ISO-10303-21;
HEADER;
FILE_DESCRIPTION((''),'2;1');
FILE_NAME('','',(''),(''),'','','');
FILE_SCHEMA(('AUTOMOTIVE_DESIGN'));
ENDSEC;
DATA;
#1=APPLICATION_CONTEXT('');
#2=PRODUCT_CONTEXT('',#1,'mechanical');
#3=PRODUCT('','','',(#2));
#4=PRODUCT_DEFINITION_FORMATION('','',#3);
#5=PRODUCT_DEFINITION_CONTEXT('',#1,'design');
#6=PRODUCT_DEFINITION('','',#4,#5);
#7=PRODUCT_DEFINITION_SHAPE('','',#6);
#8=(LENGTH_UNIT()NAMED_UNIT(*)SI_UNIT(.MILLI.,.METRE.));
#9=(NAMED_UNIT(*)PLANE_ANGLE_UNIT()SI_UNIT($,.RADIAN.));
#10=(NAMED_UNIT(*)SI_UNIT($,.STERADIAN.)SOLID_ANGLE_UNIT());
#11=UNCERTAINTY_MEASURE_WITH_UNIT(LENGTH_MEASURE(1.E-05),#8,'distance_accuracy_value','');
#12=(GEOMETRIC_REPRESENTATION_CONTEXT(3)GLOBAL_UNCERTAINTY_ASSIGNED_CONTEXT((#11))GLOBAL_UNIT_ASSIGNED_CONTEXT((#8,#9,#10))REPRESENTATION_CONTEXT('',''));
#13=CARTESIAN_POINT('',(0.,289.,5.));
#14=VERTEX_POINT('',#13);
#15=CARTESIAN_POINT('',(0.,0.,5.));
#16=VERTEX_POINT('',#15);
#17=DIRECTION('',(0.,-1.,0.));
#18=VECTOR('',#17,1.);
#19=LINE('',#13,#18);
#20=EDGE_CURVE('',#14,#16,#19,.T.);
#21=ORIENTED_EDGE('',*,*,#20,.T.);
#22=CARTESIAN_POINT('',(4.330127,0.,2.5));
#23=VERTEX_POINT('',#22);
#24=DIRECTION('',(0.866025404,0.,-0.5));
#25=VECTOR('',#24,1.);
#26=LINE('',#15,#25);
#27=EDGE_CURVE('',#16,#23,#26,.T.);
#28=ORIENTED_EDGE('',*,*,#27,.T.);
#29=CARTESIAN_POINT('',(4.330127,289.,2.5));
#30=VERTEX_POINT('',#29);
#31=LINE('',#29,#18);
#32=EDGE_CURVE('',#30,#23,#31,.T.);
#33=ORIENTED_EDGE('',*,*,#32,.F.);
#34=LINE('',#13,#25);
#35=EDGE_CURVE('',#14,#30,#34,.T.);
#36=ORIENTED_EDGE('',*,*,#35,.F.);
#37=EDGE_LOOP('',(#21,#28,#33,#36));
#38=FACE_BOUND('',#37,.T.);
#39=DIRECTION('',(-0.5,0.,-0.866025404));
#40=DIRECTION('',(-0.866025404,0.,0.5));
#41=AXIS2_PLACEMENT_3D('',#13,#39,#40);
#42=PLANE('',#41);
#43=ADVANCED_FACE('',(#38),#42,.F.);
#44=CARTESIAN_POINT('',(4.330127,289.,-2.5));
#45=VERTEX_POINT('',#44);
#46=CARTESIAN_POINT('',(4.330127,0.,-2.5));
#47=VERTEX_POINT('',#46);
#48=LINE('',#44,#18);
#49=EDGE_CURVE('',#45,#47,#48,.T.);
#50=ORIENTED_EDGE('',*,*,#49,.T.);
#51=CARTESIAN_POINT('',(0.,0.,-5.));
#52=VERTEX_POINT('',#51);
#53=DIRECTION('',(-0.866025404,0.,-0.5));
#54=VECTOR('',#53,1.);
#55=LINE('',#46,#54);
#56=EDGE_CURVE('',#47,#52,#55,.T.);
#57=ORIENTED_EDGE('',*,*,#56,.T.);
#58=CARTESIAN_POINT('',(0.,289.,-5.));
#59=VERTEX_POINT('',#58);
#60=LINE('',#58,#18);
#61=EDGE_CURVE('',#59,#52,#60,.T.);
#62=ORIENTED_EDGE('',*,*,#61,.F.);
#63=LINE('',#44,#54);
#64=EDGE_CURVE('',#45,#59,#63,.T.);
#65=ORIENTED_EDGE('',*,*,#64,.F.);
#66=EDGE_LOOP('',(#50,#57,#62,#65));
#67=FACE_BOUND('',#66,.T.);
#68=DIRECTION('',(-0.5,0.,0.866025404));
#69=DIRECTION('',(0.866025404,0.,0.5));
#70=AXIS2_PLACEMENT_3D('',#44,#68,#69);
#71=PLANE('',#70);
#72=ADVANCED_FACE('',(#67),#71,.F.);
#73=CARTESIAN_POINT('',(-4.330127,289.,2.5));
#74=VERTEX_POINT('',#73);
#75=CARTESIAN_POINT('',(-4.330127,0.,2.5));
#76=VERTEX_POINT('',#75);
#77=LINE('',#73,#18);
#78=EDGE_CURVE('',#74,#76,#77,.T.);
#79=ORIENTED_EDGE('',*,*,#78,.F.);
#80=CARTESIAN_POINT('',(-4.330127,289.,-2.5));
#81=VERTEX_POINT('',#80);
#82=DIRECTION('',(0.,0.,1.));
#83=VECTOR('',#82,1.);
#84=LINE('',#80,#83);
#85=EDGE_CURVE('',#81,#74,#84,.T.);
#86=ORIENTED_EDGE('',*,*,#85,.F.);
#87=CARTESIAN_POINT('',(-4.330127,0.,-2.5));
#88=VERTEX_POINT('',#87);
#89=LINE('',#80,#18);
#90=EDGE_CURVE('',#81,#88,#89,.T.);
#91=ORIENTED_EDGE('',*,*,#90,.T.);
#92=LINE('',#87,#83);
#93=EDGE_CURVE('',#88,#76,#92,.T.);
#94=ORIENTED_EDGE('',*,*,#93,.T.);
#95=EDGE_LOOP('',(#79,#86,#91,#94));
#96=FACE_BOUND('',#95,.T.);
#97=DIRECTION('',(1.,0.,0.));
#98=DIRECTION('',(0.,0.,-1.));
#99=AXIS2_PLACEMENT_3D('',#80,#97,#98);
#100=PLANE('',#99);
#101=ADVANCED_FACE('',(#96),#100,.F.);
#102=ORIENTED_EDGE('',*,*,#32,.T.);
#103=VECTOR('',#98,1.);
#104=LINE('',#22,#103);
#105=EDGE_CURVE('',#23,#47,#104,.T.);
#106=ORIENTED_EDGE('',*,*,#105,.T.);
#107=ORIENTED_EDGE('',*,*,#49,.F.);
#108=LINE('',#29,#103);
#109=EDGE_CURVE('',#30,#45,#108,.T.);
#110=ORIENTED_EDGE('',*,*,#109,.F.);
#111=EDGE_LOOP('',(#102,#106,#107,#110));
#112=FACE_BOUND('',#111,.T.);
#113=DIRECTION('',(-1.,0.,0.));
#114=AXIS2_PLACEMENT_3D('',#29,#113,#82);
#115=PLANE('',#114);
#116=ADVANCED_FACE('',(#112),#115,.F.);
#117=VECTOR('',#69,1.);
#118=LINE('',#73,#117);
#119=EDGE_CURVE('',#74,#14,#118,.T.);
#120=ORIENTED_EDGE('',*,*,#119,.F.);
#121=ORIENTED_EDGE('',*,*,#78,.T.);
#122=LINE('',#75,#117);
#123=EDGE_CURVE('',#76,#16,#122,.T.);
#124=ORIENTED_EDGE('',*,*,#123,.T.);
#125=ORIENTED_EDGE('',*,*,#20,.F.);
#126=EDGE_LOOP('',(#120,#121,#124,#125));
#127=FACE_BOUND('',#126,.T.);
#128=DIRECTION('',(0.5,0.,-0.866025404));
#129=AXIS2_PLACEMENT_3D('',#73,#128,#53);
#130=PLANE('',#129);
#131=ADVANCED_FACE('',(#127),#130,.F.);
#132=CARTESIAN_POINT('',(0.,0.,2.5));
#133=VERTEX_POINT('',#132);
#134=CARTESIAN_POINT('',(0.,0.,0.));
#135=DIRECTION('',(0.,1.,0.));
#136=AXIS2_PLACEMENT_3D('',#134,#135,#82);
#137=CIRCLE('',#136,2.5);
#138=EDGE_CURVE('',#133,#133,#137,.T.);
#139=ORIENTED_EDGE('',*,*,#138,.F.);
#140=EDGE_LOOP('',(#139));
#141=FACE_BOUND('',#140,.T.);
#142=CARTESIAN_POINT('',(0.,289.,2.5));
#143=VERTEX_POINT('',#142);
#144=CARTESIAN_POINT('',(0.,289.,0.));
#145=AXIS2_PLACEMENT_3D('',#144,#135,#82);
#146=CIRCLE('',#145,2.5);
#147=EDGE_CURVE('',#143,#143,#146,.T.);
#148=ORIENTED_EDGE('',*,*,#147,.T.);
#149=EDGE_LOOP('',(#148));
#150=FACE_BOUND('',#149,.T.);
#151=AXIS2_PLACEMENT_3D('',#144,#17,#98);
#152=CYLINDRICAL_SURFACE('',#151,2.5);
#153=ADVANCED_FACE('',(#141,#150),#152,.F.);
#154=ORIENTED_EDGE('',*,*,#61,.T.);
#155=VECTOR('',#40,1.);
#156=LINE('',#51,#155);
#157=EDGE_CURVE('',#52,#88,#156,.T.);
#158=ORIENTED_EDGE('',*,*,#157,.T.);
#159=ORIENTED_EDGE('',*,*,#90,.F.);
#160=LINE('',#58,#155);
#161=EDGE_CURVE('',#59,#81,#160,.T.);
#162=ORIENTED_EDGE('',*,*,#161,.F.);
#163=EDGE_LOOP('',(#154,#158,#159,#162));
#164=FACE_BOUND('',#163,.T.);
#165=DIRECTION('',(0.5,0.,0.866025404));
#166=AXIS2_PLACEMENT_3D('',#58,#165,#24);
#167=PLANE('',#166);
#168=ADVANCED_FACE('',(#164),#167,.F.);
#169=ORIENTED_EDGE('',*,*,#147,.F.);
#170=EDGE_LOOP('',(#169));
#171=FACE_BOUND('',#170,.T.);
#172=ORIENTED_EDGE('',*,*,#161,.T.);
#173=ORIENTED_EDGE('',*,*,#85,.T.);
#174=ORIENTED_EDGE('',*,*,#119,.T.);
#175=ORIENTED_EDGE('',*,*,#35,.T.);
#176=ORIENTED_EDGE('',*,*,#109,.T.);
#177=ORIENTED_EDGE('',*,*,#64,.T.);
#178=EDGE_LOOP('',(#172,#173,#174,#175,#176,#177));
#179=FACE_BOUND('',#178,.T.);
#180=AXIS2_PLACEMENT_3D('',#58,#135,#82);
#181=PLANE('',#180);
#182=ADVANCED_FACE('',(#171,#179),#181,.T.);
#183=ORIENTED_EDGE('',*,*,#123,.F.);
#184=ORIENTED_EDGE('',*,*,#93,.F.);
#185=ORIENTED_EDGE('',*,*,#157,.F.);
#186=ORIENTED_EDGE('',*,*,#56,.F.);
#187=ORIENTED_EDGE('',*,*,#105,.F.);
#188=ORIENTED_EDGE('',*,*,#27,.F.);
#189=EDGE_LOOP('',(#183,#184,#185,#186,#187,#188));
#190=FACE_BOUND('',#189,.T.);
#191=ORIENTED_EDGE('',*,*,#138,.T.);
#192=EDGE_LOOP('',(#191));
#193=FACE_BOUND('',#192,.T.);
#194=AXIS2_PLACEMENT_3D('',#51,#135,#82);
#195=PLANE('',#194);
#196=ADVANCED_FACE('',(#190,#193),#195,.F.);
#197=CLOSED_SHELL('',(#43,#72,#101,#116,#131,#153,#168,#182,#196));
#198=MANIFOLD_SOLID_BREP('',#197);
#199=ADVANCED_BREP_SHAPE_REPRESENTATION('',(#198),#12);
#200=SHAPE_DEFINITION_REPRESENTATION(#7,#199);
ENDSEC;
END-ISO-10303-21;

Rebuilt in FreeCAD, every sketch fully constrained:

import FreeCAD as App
import Part
import Sketcher
Q = App.Units.Quantity


def add_polygon(sketch, points):
    """Adds a closed chain of lines whose ends are joined by coincident constraints."""
    first, n = sketch.GeometryCount, len(points)
    for a, b in zip(points, points[1:] + points[:1]):
        sketch.addGeometry(Part.LineSegment(App.Vector(*a, 0), App.Vector(*b, 0)), False)
    for i in range(n):
        sketch.addConstraint(Sketcher.Constraint("Coincident", first + i, 2, first + (i + 1) % n, 1))

doc = App.newDocument("Part")
params = doc.addObject("Spreadsheet::Sheet", "Params")
for row, (alias, value) in enumerate([
    ("sketch1_diameter", "5 mm"),
    ("sketch1_height", "5 mm"),
    ("sketch1_length", "5 mm"),
    ("pad1_length", "289 mm"),
], start=1):
    params.set(f"A{row}", alias)
    params.set(f"B{row}", "=" + value)
    params.setAlias(f"B{row}", alias)

body = doc.addObject("PartDesign::Body", "Body")

# Sketch on XZ plane
sketch1 = body.newObject("Sketcher::SketchObject", "Sketch")
sketch1.AttachmentSupport = (doc.getObject("XZ_Plane"), [""])
sketch1.MapMode = "FlatFace"
add_polygon(sketch1, [(0, -5), (-4.3, -2.5), (-4.3, 2.5), (0, 5), (4.3, 2.5), (4.3, -2.5)])  # lines 0-5
sketch1.addGeometry(Part.Circle(App.Vector(0, 0, 0), App.Vector(0, 0, 1), 2.5), False)  # 6
sketch1.addConstraint([
    Sketcher.Constraint("Vertical", 1),
    Sketcher.Constraint("Vertical", 4),
    Sketcher.Constraint("Coincident", 6, 3, -1, 1),
    Sketcher.Constraint("Symmetric", 0, 2, 3, 2, -1, 1),
    Sketcher.Constraint("Symmetric", 2, 2, 5, 2, -1, 1),
    Sketcher.Constraint("PointOnObject", 2, 2, -2),
    Sketcher.Constraint("Parallel", 2, 5),
    Sketcher.Constraint("Horizontal", 1, 2, 3, 2),
    Sketcher.Constraint("Diameter", 6, Q("5 mm")),
    Sketcher.Constraint("DistanceY", 1, 1, 1, 2, Q("5 mm")),
    Sketcher.Constraint("Angle", 0, Q("150 deg")),
    Sketcher.Constraint("Distance", 0, Q("5 mm")),
])
sketch1.setExpression("Constraints[14]", "Params.sketch1_diameter")
sketch1.setExpression("Constraints[15]", "Params.sketch1_height")
sketch1.setExpression("Constraints[17]", "Params.sketch1_length")
pad1 = body.newObject("PartDesign::Pad", "Pad")
pad1.Profile = sketch1
pad1.setExpression("Length", "Params.pad1_length")
pad1.Reversed = True

doc.recompute()
